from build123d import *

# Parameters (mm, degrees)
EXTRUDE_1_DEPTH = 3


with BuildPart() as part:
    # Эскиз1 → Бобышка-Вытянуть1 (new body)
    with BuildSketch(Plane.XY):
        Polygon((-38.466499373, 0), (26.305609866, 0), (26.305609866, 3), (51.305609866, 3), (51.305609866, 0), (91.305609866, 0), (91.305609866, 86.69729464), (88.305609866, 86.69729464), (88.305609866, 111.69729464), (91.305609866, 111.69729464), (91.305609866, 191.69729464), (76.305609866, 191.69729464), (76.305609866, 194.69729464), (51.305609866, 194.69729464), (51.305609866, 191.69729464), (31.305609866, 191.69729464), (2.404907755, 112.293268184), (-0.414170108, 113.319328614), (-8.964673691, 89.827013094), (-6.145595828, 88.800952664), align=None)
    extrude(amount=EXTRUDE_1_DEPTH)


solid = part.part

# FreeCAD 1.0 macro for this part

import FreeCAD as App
import Part
import Sketcher
Q = App.Units.Quantity

doc = App.newDocument("Part")
body = doc.addObject("PartDesign::Body", "Body")

sketch1 = body.newObject("Sketcher::SketchObject", "Sketch")
sketch1.AttachmentSupport = (doc.getObject("XY_Plane"), [""])
sketch1.MapMode = "FlatFace"
sketch1.addGeometry([
    Part.LineSegment(App.Vector(-38.5, 0, 0), App.Vector(26.3, 0, 0)),
    Part.LineSegment(App.Vector(26.3, 0, 0), App.Vector(26.3, 3, 0)),
    Part.LineSegment(App.Vector(26.3, 3, 0), App.Vector(51.3, 3, 0)),
    Part.LineSegment(App.Vector(51.3, 3, 0), App.Vector(51.3, 0, 0)),
    Part.LineSegment(App.Vector(51.3, 0, 0), App.Vector(91.3, 0, 0)),
    Part.LineSegment(App.Vector(91.3, 0, 0), App.Vector(91.3, 86.7, 0)),
    Part.LineSegment(App.Vector(91.3, 86.7, 0), App.Vector(88.3, 86.7, 0)),
    Part.LineSegment(App.Vector(88.3, 86.7, 0), App.Vector(88.3, 111.7, 0)),
    Part.LineSegment(App.Vector(88.3, 111.7, 0), App.Vector(91.3, 111.7, 0)),
    Part.LineSegment(App.Vector(91.3, 111.7, 0), App.Vector(91.3, 191.7, 0)),
    Part.LineSegment(App.Vector(91.3, 191.7, 0), App.Vector(76.3, 191.7, 0)),
    Part.LineSegment(App.Vector(76.3, 191.7, 0), App.Vector(76.3, 194.7, 0)),
    Part.LineSegment(App.Vector(76.3, 194.7, 0), App.Vector(51.3, 194.7, 0)),
    Part.LineSegment(App.Vector(51.3, 194.7, 0), App.Vector(51.3, 191.7, 0)),
    Part.LineSegment(App.Vector(51.3, 191.7, 0), App.Vector(31.3, 191.7, 0)),
    Part.LineSegment(App.Vector(31.3, 191.7, 0), App.Vector(2.4, 112.3, 0)),
    Part.LineSegment(App.Vector(2.4, 112.3, 0), App.Vector(-0.4, 113.3, 0)),
    Part.LineSegment(App.Vector(-0.4, 113.3, 0), App.Vector(-9, 89.8, 0)),
    Part.LineSegment(App.Vector(-9, 89.8, 0), App.Vector(-6.1, 88.8, 0)),
    Part.LineSegment(App.Vector(-6.1, 88.8, 0), App.Vector(-38.5, 0, 0)),
], False)
sketch1.addConstraint([
    Sketcher.Constraint("Coincident", 0, 2, 1, 1),
    Sketcher.Constraint("Coincident", 1, 2, 2, 1),
    Sketcher.Constraint("Coincident", 2, 2, 3, 1),
    Sketcher.Constraint("Coincident", 3, 2, 4, 1),
    Sketcher.Constraint("Coincident", 4, 2, 5, 1),
    Sketcher.Constraint("Coincident", 5, 2, 6, 1),
    Sketcher.Constraint("Coincident", 6, 2, 7, 1),
    Sketcher.Constraint("Coincident", 7, 2, 8, 1),
    Sketcher.Constraint("Coincident", 8, 2, 9, 1),
    Sketcher.Constraint("Coincident", 9, 2, 10, 1),
    Sketcher.Constraint("Coincident", 10, 2, 11, 1),
    Sketcher.Constraint("Coincident", 11, 2, 12, 1),
    Sketcher.Constraint("Coincident", 12, 2, 13, 1),
    Sketcher.Constraint("Coincident", 13, 2, 14, 1),
    Sketcher.Constraint("Coincident", 14, 2, 15, 1),
    Sketcher.Constraint("Coincident", 15, 2, 16, 1),
    Sketcher.Constraint("Coincident", 16, 2, 17, 1),
    Sketcher.Constraint("Coincident", 17, 2, 18, 1),
    Sketcher.Constraint("Coincident", 18, 2, 19, 1),
    Sketcher.Constraint("Coincident", 19, 2, 0, 1),
    Sketcher.Constraint("Horizontal", 0),
    Sketcher.Constraint("Vertical", 1),
    Sketcher.Constraint("Horizontal", 2),
    Sketcher.Constraint("Vertical", 3),
    Sketcher.Constraint("Horizontal", 4),
    Sketcher.Constraint("Vertical", 5),
    Sketcher.Constraint("Horizontal", 6),
    Sketcher.Constraint("Vertical", 7),
    Sketcher.Constraint("Horizontal", 8),
    Sketcher.Constraint("Vertical", 9),
    Sketcher.Constraint("Horizontal", 10),
    Sketcher.Constraint("Vertical", 11),
    Sketcher.Constraint("Horizontal", 12),
    Sketcher.Constraint("Vertical", 13),
    Sketcher.Constraint("Horizontal", 14),
    Sketcher.Constraint("PointOnObject", 0, 2, -1),
    Sketcher.Constraint("PointOnObject", 3, 2, -1),
    Sketcher.Constraint("Perpendicular", 15, 16),
    Sketcher.Constraint("Perpendicular", 16, 17),
    Sketcher.Constraint("Perpendicular", 17, 18),
    Sketcher.Constraint("Perpendicular", 18, 19),
    Sketcher.Constraint("Horizontal", 10, 2, 13, 2),
    Sketcher.Constraint("Vertical", 5, 2, 8, 2),
    Sketcher.Constraint("Vertical", 3, 2, 12, 2),
    Sketcher.Constraint("Equal", 2, 12),
    Sketcher.Constraint("Equal", 8, 1),
    Sketcher.Constraint("Equal", 12, 7),
    Sketcher.Constraint("Equal", 3, 11),
    Sketcher.Constraint("Equal", 16, 18),
    Sketcher.Constraint("DistanceX", 2, 1, 2, 2, Q("25 mm")),
    Sketcher.Constraint("DistanceX", 4, 1, 4, 2, Q("40 mm")),
    Sketcher.Constraint("DistanceX", 6, 2, 6, 1, Q("3 mm")),
    Sketcher.Constraint("DistanceX", 14, 2, 14, 1, Q("20 mm")),
    Sketcher.Constraint("DistanceY", 9, 1, 9, 2, Q("80 mm")),
    Sketcher.Constraint("Angle", 15, Q("-110 deg")),
    Sketcher.Constraint("Distance", 16, Q("3 mm")),
    Sketcher.Constraint("Distance", 17, Q("25 mm")),
    Sketcher.Constraint("Distance", 15, Q("84.5 mm")),
    Sketcher.Constraint("Distance", 19, Q("94.5 mm")),
    Sketcher.Constraint("DistanceX", 19, 2, -1, 1, Q("38.466499 mm")),
])
pad1 = body.newObject("PartDesign::Pad", "Pad")
pad1.Profile = sketch1
pad1.Length = 3

doc.recompute()
